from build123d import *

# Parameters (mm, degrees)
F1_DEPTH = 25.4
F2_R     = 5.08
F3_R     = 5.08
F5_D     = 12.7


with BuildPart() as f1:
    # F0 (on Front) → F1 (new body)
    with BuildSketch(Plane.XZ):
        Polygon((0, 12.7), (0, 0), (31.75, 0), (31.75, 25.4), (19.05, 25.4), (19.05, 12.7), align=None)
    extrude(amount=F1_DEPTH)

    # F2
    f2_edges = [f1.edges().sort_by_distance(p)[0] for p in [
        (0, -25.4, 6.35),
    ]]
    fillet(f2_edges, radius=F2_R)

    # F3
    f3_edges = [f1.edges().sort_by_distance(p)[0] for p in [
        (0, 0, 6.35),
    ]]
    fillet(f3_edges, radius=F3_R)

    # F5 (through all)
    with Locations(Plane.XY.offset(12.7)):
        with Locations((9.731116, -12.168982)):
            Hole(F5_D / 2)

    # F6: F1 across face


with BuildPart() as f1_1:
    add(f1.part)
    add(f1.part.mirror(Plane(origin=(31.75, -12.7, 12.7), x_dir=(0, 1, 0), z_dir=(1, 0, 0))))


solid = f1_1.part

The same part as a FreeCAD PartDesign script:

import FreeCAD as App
import Part
import Sketcher
Q = App.Units.Quantity


def edges_at(feature, points):
    """Names of the edges that pass closest to the given points."""
    edges = feature.Shape.Edges
    near = lambda p: min(range(len(edges)), key=lambda i: edges[i].distToShape(Part.Vertex(*p))[0])
    return sorted({f"Edge{near(p) + 1}" for p in points})


def add_polygon(sketch, points):
    """Adds a closed chain of lines whose ends are joined by coincident constraints."""
    first, n = sketch.GeometryCount, len(points)
    for a, b in zip(points, points[1:] + points[:1]):
        sketch.addGeometry(Part.LineSegment(App.Vector(*a, 0), App.Vector(*b, 0)), False)
    for i in range(n):
        sketch.addConstraint(Sketcher.Constraint("Coincident", first + i, 2, first + (i + 1) % n, 1))

doc = App.newDocument("Part")
body = doc.addObject("PartDesign::Body", "Body")

# Sketch on XZ plane
sketch1 = body.newObject("Sketcher::SketchObject", "Sketch")
sketch1.AttachmentSupport = (doc.getObject("XZ_Plane"), [""])
sketch1.MapMode = "FlatFace"
add_polygon(sketch1, [(0, 12.7), (0, 0), (31.75, 0), (31.75, 25.4), (19.05, 25.4), (19.05, 12.7)])  # lines 0-5
sketch1.addConstraint([
    Sketcher.Constraint("Vertical", 0),
    Sketcher.Constraint("Horizontal", 1),
    Sketcher.Constraint("Vertical", 2),
    Sketcher.Constraint("Horizontal", 3),
    Sketcher.Constraint("Vertical", 4),
    Sketcher.Constraint("Horizontal", 5),
    Sketcher.Constraint("Coincident", 0, 2, -1, 1),
    Sketcher.Constraint("Equal", 3, 0),
    Sketcher.Constraint("Equal", 0, 4),
    Sketcher.Constraint("DistanceY", 2, 1, 2, 2, Q("1 in")),
    Sketcher.Constraint("DistanceX", 1, 1, 1, 2, Q("1.25 in")),
])
pad1 = body.newObject("PartDesign::Pad", "Pad")
pad1.Profile = sketch1
pad1.Length = Q("1 in")
doc.recompute()

fillet = body.newObject("PartDesign::Fillet", "Fillet")
fillet.Base = (pad1, edges_at(pad1, [(0, -25.4, 6.35)]))
fillet.Radius = Q("0.2 in")
doc.recompute()

fillet2 = body.newObject("PartDesign::Fillet", "Fillet001")
fillet2.Base = (fillet, edges_at(fillet, [(0, 0, 6.35)]))
fillet2.Radius = Q("0.2 in")

# Sketch on XY plane
sketch2 = body.newObject("Sketcher::SketchObject", "Sketch001")
sketch2.AttachmentSupport = (doc.getObject("XY_Plane"), [""])
sketch2.MapMode = "FlatFace"
sketch2.AttachmentOffset = App.Placement(App.Vector(0, 0, 0.5 * 25.4), App.Rotation())
sketch2.addGeometry(Part.Circle(App.Vector(9.731116, -12.168982, 0), App.Vector(0, 0, 1), 6.35), False)
sketch2.addConstraint([
    Sketcher.Constraint("Diameter", 0, Q("0.5 in")),
    Sketcher.Constraint("DistanceX", -1, 1, 0, 3, Q("9.731116 mm")),
    Sketcher.Constraint("DistanceY", 0, 3, -1, 1, Q("12.168982 mm")),
])
doc.recompute()
hole = body.newObject("PartDesign::Hole", "Hole")
hole.Profile = sketch2
hole.ThreadType = "None"
hole.Diameter = Q("0.5 in")
hole.DepthType = "ThroughAll"
body2 = doc.addObject("PartDesign::Body", "Body001")
doc.recompute()

body2.BaseFeature = body
doc.recompute()

mirroring = doc.addObject("Part::Mirroring", "Mirroring")
mirroring.Source = body
mirroring.Base = App.Vector(31.75, -12.7, 12.7)
mirroring.Normal = App.Vector(1, 0, 0)
body3 = doc.addObject("PartDesign::Body", "Body002")
body3.BaseFeature = mirroring
boolean = body2.newObject("PartDesign::Boolean", "Boolean")
boolean.Type = "Fuse"
boolean.addObjects([body3])
doc.recompute()
mirroring.Visibility = False

doc.recompute()
